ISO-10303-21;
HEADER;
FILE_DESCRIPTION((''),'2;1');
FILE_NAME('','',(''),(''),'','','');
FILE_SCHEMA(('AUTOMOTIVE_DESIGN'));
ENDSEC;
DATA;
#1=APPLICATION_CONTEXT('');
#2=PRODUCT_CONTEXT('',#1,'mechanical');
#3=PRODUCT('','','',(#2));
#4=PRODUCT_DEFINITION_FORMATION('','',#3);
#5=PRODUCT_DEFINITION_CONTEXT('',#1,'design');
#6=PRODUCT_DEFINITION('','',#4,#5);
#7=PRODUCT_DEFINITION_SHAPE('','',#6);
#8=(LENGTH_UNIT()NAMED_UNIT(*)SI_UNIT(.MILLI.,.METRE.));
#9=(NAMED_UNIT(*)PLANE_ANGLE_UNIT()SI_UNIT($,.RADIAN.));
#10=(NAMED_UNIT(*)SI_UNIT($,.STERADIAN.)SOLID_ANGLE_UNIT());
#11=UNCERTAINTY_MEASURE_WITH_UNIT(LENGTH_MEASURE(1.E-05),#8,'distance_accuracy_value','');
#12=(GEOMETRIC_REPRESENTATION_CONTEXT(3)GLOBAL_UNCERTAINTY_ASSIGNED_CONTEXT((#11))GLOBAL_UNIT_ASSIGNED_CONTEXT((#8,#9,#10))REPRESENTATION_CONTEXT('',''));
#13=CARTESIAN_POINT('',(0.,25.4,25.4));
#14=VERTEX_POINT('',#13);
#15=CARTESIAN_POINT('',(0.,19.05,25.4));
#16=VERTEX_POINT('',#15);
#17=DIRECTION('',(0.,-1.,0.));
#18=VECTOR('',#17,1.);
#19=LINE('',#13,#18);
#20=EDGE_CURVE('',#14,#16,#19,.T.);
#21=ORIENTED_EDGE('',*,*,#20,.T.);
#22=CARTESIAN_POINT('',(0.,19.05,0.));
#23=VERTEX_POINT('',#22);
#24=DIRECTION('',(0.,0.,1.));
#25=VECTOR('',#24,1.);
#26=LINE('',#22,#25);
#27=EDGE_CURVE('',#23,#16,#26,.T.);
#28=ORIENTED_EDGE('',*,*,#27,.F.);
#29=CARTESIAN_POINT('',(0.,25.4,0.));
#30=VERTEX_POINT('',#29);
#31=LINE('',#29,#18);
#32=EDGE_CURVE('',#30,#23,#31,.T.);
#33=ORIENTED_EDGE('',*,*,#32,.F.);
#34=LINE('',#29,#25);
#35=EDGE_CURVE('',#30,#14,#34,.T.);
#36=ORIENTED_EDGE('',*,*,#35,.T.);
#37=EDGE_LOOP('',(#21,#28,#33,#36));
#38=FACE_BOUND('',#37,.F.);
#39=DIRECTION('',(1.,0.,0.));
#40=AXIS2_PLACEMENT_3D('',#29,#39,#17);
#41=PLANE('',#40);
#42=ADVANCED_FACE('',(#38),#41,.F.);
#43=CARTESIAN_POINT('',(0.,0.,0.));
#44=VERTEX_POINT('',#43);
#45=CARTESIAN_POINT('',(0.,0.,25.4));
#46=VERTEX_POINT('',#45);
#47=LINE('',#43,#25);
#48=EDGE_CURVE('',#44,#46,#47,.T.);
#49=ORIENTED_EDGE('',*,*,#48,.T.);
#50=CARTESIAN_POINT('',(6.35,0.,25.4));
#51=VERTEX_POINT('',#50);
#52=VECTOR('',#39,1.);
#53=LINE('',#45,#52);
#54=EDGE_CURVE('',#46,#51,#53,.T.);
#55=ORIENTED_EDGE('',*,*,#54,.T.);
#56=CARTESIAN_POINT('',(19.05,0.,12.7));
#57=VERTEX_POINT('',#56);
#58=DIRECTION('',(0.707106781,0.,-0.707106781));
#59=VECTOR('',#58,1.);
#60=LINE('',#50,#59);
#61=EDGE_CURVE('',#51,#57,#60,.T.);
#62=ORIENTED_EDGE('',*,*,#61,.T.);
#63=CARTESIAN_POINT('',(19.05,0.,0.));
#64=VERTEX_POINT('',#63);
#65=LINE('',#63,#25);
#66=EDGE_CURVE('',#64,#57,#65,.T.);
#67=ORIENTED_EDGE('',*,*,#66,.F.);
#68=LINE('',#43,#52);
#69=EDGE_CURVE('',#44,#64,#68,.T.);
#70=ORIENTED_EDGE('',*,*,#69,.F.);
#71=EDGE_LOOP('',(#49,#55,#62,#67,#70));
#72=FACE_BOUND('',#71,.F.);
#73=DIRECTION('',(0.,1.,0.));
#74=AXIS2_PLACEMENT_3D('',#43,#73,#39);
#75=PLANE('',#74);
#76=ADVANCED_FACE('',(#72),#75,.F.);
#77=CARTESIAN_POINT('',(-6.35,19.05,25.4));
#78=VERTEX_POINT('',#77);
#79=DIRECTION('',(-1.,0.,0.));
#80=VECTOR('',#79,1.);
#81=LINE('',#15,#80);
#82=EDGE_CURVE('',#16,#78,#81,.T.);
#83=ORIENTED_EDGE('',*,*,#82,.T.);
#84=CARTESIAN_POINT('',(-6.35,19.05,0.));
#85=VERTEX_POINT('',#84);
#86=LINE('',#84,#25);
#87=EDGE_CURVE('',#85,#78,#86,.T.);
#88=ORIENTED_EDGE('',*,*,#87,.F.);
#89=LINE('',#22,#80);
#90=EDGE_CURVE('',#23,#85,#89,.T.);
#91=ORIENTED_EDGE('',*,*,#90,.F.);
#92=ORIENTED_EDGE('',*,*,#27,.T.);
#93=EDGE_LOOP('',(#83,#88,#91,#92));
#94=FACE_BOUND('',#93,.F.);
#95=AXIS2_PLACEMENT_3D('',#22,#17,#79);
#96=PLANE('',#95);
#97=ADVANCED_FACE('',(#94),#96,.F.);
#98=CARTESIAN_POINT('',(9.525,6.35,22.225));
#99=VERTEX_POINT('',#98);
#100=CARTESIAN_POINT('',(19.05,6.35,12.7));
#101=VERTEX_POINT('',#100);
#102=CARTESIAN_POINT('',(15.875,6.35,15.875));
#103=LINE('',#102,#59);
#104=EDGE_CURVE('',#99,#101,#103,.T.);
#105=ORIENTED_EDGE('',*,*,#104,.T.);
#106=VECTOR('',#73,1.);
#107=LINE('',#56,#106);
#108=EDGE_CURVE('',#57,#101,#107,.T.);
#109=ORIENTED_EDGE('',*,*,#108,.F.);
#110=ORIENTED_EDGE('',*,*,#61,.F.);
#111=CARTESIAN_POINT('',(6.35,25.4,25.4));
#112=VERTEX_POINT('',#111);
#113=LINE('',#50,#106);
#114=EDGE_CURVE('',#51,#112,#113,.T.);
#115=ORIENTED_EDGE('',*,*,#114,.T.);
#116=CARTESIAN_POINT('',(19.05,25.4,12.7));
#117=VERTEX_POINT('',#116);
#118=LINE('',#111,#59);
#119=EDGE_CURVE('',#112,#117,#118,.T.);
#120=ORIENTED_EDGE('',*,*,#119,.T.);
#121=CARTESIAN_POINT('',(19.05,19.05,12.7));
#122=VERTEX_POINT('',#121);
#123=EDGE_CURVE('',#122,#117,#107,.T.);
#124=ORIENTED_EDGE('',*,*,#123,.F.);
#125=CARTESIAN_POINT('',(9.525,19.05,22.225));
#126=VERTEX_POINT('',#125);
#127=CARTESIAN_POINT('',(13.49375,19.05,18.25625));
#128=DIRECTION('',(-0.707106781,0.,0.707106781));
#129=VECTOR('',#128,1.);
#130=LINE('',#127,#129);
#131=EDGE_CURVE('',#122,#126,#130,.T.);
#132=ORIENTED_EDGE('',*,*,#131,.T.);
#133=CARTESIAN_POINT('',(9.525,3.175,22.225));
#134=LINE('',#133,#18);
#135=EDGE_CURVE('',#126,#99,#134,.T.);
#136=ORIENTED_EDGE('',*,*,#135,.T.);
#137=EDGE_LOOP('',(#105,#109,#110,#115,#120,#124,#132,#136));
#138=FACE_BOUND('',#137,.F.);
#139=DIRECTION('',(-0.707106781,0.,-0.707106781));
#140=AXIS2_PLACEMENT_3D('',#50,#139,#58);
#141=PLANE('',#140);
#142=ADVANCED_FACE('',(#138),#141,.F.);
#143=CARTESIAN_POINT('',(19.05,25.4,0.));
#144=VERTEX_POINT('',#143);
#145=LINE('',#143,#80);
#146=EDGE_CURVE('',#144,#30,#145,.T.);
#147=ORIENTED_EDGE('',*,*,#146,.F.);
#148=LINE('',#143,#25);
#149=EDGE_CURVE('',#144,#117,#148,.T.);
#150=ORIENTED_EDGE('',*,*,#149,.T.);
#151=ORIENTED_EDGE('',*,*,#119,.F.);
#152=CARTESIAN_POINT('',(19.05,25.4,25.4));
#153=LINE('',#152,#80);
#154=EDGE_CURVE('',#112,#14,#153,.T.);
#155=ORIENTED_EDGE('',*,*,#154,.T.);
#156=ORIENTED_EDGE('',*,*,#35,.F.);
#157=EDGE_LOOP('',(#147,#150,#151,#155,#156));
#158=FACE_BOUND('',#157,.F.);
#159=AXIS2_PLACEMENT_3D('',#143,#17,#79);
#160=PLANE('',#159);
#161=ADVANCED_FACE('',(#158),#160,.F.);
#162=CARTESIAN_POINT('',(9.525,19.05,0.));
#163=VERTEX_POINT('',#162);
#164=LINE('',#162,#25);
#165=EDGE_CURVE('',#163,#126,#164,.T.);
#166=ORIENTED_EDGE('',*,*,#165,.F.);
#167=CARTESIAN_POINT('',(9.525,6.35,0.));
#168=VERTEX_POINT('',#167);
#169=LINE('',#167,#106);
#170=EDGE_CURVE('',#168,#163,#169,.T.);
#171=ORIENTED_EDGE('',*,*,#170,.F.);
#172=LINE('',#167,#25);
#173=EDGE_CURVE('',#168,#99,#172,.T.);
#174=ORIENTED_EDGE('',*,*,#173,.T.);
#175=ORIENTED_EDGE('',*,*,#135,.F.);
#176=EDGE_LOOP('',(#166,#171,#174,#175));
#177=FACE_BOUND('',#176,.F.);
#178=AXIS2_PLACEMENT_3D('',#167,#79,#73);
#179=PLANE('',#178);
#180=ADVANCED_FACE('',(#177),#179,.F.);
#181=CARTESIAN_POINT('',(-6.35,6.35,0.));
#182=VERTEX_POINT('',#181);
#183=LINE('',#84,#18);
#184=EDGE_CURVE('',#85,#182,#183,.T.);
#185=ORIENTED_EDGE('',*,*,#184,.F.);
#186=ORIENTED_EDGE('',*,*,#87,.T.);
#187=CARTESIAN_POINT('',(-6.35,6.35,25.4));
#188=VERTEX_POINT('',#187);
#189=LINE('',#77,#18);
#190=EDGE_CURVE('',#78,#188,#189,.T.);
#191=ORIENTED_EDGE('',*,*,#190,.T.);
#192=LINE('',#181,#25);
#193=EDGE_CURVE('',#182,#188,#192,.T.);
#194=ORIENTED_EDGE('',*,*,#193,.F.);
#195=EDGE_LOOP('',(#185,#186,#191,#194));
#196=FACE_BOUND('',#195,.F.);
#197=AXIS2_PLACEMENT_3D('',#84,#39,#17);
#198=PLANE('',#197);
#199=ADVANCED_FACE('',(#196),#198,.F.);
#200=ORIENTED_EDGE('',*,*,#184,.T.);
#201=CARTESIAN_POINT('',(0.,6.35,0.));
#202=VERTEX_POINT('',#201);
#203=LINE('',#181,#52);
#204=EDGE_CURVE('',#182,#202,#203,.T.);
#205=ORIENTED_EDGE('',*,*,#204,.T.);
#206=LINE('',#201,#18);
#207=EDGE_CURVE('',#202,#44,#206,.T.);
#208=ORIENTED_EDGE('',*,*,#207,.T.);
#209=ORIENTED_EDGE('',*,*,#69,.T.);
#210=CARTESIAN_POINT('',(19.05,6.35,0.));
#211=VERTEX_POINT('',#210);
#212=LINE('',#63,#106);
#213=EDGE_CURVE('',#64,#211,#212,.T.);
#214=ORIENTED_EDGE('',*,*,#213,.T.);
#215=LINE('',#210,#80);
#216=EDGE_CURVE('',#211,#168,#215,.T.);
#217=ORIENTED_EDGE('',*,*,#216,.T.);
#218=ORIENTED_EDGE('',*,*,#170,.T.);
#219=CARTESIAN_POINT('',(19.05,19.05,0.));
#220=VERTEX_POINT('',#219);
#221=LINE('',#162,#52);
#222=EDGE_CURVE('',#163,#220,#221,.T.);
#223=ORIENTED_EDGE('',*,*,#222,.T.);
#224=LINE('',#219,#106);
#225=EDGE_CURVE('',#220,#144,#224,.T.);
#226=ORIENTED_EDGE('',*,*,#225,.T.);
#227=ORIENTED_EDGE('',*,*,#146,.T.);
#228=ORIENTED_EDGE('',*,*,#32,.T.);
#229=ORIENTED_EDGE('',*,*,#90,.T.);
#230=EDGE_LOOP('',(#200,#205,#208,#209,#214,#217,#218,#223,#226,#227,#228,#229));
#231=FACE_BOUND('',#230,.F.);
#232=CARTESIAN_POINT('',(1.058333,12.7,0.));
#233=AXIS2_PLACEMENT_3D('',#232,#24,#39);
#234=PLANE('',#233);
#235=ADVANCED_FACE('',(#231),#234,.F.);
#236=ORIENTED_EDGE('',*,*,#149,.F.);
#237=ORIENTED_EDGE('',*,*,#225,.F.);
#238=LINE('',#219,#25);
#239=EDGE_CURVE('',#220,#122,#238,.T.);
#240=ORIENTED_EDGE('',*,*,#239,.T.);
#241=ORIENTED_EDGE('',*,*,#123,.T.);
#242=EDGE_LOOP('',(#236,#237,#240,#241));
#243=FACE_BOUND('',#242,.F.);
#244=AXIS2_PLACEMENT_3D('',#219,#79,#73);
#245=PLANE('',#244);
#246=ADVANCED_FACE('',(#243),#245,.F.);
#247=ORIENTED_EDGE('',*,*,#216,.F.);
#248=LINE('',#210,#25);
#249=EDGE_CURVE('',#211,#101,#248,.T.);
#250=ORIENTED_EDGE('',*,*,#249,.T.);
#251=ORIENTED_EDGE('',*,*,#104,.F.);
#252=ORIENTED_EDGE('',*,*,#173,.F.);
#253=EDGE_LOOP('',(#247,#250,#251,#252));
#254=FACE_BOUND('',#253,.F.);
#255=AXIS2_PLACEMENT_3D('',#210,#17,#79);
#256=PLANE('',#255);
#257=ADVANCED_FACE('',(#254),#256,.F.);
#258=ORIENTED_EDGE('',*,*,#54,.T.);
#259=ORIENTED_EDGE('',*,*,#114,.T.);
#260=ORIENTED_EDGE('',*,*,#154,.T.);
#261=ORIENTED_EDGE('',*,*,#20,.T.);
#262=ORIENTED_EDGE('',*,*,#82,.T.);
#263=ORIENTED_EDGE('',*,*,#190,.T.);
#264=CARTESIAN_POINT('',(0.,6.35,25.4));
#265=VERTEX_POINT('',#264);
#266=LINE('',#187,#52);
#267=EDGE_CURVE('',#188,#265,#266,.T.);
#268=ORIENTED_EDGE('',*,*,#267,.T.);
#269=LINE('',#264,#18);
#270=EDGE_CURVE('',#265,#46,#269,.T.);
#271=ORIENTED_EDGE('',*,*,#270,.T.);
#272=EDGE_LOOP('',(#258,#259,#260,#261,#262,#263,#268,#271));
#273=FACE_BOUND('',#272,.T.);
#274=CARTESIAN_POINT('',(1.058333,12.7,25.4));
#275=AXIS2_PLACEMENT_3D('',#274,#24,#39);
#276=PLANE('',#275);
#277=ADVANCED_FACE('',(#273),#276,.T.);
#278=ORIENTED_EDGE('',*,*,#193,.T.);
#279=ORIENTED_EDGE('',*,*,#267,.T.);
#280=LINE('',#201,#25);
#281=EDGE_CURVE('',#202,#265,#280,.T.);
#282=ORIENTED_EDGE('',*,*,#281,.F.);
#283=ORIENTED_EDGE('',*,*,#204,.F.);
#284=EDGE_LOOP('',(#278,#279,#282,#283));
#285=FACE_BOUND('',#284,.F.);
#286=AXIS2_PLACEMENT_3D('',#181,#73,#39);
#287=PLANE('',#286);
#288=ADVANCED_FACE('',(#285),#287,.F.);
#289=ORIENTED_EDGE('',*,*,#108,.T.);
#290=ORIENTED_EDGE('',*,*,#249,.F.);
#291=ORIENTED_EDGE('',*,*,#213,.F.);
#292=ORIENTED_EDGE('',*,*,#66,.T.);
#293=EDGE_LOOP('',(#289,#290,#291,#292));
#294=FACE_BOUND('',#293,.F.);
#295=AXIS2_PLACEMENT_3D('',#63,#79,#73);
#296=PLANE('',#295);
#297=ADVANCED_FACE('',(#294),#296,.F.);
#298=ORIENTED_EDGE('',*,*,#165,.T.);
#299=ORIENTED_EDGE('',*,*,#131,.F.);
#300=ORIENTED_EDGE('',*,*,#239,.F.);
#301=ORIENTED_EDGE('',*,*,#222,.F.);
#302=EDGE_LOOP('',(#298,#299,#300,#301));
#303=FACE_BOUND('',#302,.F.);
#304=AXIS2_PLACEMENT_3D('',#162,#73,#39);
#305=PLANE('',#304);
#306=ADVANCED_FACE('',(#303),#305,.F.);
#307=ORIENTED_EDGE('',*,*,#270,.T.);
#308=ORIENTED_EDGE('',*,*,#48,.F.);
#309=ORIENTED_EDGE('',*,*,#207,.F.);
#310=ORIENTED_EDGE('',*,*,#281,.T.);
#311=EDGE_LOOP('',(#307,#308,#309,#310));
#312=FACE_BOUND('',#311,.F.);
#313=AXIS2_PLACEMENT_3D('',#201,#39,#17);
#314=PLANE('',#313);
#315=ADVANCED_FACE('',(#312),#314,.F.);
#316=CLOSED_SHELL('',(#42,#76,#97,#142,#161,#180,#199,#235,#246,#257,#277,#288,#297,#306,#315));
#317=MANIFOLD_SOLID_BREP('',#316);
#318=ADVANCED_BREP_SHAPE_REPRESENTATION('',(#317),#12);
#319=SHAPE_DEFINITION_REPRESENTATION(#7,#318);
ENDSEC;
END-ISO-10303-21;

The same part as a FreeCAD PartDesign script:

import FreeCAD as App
import Part
import Sketcher

V = App.Vector
Q = App.Units.Quantity

doc = App.newDocument("Part")
body = doc.addObject("PartDesign::Body", "Body")

sketch1 = doc.addObject("Sketcher::SketchObject", "Sketch")
body.addObject(sketch1)
sketch1.AttachmentSupport = (doc.XY_Plane, [""])
sketch1.MapMode = "FlatFace"
sketch1.addGeometry([
    Part.LineSegment(V(0, 6, 0), V(0, 0, 0)),
    Part.LineSegment(V(0, 0, 0), V(19, 0, 0)),
    Part.LineSegment(V(19, 0, 0), V(19, 6, 0)),
    Part.LineSegment(V(19, 6, 0), V(10, 6, 0)),
    Part.LineSegment(V(10, 6, 0), V(10, 19, 0)),
    Part.LineSegment(V(10, 19, 0), V(19, 19, 0)),
    Part.LineSegment(V(19, 19, 0), V(19, 25, 0)),
    Part.LineSegment(V(19, 25, 0), V(0, 25, 0)),
    Part.LineSegment(V(0, 25, 0), V(0, 19, 0)),
    Part.LineSegment(V(0, 19, 0), V(-6, 19, 0)),
    Part.LineSegment(V(-6, 19, 0), V(-6, 6, 0)),
    Part.LineSegment(V(-6, 6, 0), V(0, 6, 0)),
], False)
sketch1.addConstraint([
    Sketcher.Constraint("Coincident", 0, 2, 1, 1),
    Sketcher.Constraint("Coincident", 1, 2, 2, 1),
    Sketcher.Constraint("Coincident", 2, 2, 3, 1),
    Sketcher.Constraint("Coincident", 3, 2, 4, 1),
    Sketcher.Constraint("Coincident", 4, 2, 5, 1),
    Sketcher.Constraint("Coincident", 5, 2, 6, 1),
    Sketcher.Constraint("Coincident", 6, 2, 7, 1),
    Sketcher.Constraint("Coincident", 7, 2, 8, 1),
    Sketcher.Constraint("Coincident", 8, 2, 9, 1),
    Sketcher.Constraint("Coincident", 9, 2, 10, 1),
    Sketcher.Constraint("Coincident", 10, 2, 11, 1),
    Sketcher.Constraint("Coincident", 11, 2, 0, 1),
    Sketcher.Constraint("Vertical", 0),
    Sketcher.Constraint("Horizontal", 1),
    Sketcher.Constraint("Vertical", 2),
    Sketcher.Constraint("Horizontal", 3),
    Sketcher.Constraint("Vertical", 4),
    Sketcher.Constraint("Horizontal", 5),
    Sketcher.Constraint("Vertical", 6),
    Sketcher.Constraint("Horizontal", 7),
    Sketcher.Constraint("Vertical", 8),
    Sketcher.Constraint("Horizontal", 9),
    Sketcher.Constraint("Vertical", 10),
    Sketcher.Constraint("Horizontal", 11),
    Sketcher.Constraint("Coincident", 0, 2, -1, 1),
    Sketcher.Constraint("PointOnObject", 7, 2, -2),
    Sketcher.Constraint("Horizontal", 5, 2, 8, 2),
    Sketcher.Constraint("Horizontal", 3, 2, 10, 2),
    Sketcher.Constraint("Vertical", 2, 2, 5, 2),
    Sketcher.Constraint("Equal", 11, 0),
    Sketcher.Constraint("Equal", 2, 6),
    Sketcher.Constraint("DistanceY", 4, 1, 4, 2, Q("0.5 in")),
    Sketcher.Constraint("DistanceY", -1, 1, 6, 2, Q("1 in")),
    Sketcher.Constraint("DistanceX", 1, 1, 1, 2, Q("0.75 in")),
    Sketcher.Constraint("DistanceX", 3, 2, 3, 1, Q("0.375 in")),
])
pad1 = doc.addObject("PartDesign::Pad", "Pad")
body.addObject(pad1)
pad1.Profile = sketch1
pad1.Length = Q("1 in")

sketch2 = doc.addObject("Sketcher::SketchObject", "Sketch001")
body.addObject(sketch2)
sketch2.AttachmentSupport = (doc.XZ_Plane, [""])
sketch2.MapMode = "FlatFace"
sketch2.addGeometry([
    Part.LineSegment(V(19, 25, 0), V(6, 25, 0)),
    Part.LineSegment(V(6, 25, 0), V(19, 13, 0)),
    Part.LineSegment(V(19, 13, 0), V(19, 25, 0)),
], False)
sketch2.addConstraint([
    Sketcher.Constraint("Coincident", 0, 2, 1, 1),
    Sketcher.Constraint("Coincident", 1, 2, 2, 1),
    Sketcher.Constraint("Coincident", 2, 2, 0, 1),
    Sketcher.Constraint("Horizontal", 0),
    Sketcher.Constraint("Vertical", 2),
    Sketcher.Constraint("Equal", 0, 2),
    Sketcher.Constraint("DistanceX", 0, 2, 0, 1, Q("0.5 in")),
    Sketcher.Constraint("DistanceY", -1, 1, 0, 2, Q("1 in")),
    Sketcher.Constraint("DistanceX", -1, 1, 0, 2, Q("0.25 in")),
])
pocket1 = doc.addObject("PartDesign::Pocket", "Pocket")
body.addObject(pocket1)
pocket1.Profile = sketch2
pocket1.Length = Q("1 in")

doc.recompute()
